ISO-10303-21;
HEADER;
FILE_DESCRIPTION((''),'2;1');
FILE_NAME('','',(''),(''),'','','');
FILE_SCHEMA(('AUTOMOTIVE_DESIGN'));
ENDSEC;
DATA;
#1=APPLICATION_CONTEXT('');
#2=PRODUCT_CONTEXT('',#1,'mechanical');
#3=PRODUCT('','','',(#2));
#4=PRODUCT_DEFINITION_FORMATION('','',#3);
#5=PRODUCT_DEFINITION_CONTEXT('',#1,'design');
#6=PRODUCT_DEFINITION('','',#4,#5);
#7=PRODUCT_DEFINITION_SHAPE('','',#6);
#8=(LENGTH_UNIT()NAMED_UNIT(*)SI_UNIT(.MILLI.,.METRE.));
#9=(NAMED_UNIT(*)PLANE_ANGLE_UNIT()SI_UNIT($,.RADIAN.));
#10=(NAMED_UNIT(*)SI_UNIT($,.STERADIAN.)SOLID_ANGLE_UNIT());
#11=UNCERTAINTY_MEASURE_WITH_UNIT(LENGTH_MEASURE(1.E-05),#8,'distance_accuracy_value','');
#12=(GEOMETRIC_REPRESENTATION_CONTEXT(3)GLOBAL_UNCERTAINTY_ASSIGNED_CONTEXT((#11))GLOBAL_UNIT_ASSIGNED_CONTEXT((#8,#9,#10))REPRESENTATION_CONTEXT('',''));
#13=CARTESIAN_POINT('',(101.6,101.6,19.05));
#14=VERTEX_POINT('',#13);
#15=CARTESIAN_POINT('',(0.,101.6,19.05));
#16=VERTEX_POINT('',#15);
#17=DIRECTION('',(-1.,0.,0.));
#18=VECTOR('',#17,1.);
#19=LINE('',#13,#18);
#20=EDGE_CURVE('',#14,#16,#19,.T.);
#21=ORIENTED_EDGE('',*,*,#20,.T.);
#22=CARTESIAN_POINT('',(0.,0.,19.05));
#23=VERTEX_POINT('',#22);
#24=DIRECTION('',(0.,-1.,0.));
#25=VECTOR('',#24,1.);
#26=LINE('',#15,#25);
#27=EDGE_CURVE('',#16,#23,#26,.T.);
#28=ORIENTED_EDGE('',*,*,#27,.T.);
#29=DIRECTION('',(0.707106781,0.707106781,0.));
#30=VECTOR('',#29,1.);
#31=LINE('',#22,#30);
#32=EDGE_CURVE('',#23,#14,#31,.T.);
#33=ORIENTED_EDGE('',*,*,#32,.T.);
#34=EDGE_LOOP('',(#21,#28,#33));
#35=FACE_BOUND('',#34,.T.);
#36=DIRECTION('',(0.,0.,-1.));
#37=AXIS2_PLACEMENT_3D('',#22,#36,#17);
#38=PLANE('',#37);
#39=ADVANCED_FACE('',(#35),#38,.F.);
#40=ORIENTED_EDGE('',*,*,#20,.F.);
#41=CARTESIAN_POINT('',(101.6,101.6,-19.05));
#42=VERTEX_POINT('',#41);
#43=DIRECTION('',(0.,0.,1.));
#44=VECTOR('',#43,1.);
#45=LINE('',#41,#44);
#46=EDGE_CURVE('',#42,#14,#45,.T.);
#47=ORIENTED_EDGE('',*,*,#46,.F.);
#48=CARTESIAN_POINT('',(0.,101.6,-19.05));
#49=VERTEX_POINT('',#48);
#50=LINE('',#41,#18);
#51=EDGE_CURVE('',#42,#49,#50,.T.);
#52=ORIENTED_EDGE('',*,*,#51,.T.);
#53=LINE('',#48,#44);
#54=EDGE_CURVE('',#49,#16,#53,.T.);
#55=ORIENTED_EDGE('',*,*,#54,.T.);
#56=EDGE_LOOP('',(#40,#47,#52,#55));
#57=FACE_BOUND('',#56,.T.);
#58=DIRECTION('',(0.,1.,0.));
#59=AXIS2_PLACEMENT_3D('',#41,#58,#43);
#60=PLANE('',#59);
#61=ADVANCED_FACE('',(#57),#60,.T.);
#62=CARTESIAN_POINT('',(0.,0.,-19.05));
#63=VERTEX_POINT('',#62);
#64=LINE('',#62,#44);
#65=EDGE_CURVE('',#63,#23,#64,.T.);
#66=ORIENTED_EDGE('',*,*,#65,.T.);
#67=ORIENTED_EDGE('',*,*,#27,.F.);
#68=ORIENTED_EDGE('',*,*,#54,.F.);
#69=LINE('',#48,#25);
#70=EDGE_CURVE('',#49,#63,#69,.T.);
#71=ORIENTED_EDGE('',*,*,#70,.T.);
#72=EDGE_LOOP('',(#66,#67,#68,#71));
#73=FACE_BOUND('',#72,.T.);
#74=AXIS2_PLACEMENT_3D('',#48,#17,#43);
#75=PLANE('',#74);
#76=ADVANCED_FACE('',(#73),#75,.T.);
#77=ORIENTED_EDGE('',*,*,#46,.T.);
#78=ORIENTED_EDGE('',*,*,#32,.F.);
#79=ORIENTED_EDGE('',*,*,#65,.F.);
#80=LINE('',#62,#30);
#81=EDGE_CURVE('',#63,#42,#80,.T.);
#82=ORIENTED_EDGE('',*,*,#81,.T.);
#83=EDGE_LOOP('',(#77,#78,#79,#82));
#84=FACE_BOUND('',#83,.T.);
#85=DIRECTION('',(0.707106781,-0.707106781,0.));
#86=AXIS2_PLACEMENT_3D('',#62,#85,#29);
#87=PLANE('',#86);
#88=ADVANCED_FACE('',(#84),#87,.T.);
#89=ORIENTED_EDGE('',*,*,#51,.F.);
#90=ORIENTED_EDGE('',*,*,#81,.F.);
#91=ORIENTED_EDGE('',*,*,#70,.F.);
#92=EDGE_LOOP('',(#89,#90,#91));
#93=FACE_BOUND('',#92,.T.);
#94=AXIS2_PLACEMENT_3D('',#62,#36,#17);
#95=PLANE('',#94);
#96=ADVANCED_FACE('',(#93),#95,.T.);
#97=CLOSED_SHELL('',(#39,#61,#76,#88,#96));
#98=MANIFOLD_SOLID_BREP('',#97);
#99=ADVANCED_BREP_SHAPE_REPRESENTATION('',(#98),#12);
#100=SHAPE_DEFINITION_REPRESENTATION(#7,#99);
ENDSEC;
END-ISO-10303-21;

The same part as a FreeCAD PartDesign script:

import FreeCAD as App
import Part
import Sketcher
from FreeCAD import Vector
Q = App.Units.Quantity

doc = App.newDocument("Part")
body = doc.addObject("PartDesign::Body", "Body")

sketch1 = doc.addObject("Sketcher::SketchObject", "Sketch")
body.addObject(sketch1)
sketch1.AttachmentSupport = (doc.XY_Plane, [""])
sketch1.MapMode = "FlatFace"
sketch1.addGeometry([
    Part.LineSegment(Vector(0, 0, 0), Vector(102, 102, 0)),
    Part.LineSegment(Vector(102, 102, 0), Vector(0, 102, 0)),
    Part.LineSegment(Vector(0, 102, 0), Vector(0, 0, 0)),
], False)
sketch1.addConstraint([
    Sketcher.Constraint("Coincident", 0, 2, 1, 1),
    Sketcher.Constraint("Coincident", 1, 2, 2, 1),
    Sketcher.Constraint("Coincident", 2, 2, 0, 1),
    Sketcher.Constraint("Horizontal", 1),
    Sketcher.Constraint("Vertical", 2),
    Sketcher.Constraint("Coincident", 2, 2, -1, 1),
    Sketcher.Constraint("Equal", 1, 2),
    Sketcher.Constraint("DistanceX", 1, 2, 1, 1, Q("4 in")),
])
pad1 = doc.addObject("PartDesign::Pad", "Pad")
body.addObject(pad1)
pad1.Profile = sketch1
pad1.Type = "TwoLengths"
pad1.Length = Q("0.75 in")
pad1.Length2 = Q("0.75 in")

doc.recompute()
